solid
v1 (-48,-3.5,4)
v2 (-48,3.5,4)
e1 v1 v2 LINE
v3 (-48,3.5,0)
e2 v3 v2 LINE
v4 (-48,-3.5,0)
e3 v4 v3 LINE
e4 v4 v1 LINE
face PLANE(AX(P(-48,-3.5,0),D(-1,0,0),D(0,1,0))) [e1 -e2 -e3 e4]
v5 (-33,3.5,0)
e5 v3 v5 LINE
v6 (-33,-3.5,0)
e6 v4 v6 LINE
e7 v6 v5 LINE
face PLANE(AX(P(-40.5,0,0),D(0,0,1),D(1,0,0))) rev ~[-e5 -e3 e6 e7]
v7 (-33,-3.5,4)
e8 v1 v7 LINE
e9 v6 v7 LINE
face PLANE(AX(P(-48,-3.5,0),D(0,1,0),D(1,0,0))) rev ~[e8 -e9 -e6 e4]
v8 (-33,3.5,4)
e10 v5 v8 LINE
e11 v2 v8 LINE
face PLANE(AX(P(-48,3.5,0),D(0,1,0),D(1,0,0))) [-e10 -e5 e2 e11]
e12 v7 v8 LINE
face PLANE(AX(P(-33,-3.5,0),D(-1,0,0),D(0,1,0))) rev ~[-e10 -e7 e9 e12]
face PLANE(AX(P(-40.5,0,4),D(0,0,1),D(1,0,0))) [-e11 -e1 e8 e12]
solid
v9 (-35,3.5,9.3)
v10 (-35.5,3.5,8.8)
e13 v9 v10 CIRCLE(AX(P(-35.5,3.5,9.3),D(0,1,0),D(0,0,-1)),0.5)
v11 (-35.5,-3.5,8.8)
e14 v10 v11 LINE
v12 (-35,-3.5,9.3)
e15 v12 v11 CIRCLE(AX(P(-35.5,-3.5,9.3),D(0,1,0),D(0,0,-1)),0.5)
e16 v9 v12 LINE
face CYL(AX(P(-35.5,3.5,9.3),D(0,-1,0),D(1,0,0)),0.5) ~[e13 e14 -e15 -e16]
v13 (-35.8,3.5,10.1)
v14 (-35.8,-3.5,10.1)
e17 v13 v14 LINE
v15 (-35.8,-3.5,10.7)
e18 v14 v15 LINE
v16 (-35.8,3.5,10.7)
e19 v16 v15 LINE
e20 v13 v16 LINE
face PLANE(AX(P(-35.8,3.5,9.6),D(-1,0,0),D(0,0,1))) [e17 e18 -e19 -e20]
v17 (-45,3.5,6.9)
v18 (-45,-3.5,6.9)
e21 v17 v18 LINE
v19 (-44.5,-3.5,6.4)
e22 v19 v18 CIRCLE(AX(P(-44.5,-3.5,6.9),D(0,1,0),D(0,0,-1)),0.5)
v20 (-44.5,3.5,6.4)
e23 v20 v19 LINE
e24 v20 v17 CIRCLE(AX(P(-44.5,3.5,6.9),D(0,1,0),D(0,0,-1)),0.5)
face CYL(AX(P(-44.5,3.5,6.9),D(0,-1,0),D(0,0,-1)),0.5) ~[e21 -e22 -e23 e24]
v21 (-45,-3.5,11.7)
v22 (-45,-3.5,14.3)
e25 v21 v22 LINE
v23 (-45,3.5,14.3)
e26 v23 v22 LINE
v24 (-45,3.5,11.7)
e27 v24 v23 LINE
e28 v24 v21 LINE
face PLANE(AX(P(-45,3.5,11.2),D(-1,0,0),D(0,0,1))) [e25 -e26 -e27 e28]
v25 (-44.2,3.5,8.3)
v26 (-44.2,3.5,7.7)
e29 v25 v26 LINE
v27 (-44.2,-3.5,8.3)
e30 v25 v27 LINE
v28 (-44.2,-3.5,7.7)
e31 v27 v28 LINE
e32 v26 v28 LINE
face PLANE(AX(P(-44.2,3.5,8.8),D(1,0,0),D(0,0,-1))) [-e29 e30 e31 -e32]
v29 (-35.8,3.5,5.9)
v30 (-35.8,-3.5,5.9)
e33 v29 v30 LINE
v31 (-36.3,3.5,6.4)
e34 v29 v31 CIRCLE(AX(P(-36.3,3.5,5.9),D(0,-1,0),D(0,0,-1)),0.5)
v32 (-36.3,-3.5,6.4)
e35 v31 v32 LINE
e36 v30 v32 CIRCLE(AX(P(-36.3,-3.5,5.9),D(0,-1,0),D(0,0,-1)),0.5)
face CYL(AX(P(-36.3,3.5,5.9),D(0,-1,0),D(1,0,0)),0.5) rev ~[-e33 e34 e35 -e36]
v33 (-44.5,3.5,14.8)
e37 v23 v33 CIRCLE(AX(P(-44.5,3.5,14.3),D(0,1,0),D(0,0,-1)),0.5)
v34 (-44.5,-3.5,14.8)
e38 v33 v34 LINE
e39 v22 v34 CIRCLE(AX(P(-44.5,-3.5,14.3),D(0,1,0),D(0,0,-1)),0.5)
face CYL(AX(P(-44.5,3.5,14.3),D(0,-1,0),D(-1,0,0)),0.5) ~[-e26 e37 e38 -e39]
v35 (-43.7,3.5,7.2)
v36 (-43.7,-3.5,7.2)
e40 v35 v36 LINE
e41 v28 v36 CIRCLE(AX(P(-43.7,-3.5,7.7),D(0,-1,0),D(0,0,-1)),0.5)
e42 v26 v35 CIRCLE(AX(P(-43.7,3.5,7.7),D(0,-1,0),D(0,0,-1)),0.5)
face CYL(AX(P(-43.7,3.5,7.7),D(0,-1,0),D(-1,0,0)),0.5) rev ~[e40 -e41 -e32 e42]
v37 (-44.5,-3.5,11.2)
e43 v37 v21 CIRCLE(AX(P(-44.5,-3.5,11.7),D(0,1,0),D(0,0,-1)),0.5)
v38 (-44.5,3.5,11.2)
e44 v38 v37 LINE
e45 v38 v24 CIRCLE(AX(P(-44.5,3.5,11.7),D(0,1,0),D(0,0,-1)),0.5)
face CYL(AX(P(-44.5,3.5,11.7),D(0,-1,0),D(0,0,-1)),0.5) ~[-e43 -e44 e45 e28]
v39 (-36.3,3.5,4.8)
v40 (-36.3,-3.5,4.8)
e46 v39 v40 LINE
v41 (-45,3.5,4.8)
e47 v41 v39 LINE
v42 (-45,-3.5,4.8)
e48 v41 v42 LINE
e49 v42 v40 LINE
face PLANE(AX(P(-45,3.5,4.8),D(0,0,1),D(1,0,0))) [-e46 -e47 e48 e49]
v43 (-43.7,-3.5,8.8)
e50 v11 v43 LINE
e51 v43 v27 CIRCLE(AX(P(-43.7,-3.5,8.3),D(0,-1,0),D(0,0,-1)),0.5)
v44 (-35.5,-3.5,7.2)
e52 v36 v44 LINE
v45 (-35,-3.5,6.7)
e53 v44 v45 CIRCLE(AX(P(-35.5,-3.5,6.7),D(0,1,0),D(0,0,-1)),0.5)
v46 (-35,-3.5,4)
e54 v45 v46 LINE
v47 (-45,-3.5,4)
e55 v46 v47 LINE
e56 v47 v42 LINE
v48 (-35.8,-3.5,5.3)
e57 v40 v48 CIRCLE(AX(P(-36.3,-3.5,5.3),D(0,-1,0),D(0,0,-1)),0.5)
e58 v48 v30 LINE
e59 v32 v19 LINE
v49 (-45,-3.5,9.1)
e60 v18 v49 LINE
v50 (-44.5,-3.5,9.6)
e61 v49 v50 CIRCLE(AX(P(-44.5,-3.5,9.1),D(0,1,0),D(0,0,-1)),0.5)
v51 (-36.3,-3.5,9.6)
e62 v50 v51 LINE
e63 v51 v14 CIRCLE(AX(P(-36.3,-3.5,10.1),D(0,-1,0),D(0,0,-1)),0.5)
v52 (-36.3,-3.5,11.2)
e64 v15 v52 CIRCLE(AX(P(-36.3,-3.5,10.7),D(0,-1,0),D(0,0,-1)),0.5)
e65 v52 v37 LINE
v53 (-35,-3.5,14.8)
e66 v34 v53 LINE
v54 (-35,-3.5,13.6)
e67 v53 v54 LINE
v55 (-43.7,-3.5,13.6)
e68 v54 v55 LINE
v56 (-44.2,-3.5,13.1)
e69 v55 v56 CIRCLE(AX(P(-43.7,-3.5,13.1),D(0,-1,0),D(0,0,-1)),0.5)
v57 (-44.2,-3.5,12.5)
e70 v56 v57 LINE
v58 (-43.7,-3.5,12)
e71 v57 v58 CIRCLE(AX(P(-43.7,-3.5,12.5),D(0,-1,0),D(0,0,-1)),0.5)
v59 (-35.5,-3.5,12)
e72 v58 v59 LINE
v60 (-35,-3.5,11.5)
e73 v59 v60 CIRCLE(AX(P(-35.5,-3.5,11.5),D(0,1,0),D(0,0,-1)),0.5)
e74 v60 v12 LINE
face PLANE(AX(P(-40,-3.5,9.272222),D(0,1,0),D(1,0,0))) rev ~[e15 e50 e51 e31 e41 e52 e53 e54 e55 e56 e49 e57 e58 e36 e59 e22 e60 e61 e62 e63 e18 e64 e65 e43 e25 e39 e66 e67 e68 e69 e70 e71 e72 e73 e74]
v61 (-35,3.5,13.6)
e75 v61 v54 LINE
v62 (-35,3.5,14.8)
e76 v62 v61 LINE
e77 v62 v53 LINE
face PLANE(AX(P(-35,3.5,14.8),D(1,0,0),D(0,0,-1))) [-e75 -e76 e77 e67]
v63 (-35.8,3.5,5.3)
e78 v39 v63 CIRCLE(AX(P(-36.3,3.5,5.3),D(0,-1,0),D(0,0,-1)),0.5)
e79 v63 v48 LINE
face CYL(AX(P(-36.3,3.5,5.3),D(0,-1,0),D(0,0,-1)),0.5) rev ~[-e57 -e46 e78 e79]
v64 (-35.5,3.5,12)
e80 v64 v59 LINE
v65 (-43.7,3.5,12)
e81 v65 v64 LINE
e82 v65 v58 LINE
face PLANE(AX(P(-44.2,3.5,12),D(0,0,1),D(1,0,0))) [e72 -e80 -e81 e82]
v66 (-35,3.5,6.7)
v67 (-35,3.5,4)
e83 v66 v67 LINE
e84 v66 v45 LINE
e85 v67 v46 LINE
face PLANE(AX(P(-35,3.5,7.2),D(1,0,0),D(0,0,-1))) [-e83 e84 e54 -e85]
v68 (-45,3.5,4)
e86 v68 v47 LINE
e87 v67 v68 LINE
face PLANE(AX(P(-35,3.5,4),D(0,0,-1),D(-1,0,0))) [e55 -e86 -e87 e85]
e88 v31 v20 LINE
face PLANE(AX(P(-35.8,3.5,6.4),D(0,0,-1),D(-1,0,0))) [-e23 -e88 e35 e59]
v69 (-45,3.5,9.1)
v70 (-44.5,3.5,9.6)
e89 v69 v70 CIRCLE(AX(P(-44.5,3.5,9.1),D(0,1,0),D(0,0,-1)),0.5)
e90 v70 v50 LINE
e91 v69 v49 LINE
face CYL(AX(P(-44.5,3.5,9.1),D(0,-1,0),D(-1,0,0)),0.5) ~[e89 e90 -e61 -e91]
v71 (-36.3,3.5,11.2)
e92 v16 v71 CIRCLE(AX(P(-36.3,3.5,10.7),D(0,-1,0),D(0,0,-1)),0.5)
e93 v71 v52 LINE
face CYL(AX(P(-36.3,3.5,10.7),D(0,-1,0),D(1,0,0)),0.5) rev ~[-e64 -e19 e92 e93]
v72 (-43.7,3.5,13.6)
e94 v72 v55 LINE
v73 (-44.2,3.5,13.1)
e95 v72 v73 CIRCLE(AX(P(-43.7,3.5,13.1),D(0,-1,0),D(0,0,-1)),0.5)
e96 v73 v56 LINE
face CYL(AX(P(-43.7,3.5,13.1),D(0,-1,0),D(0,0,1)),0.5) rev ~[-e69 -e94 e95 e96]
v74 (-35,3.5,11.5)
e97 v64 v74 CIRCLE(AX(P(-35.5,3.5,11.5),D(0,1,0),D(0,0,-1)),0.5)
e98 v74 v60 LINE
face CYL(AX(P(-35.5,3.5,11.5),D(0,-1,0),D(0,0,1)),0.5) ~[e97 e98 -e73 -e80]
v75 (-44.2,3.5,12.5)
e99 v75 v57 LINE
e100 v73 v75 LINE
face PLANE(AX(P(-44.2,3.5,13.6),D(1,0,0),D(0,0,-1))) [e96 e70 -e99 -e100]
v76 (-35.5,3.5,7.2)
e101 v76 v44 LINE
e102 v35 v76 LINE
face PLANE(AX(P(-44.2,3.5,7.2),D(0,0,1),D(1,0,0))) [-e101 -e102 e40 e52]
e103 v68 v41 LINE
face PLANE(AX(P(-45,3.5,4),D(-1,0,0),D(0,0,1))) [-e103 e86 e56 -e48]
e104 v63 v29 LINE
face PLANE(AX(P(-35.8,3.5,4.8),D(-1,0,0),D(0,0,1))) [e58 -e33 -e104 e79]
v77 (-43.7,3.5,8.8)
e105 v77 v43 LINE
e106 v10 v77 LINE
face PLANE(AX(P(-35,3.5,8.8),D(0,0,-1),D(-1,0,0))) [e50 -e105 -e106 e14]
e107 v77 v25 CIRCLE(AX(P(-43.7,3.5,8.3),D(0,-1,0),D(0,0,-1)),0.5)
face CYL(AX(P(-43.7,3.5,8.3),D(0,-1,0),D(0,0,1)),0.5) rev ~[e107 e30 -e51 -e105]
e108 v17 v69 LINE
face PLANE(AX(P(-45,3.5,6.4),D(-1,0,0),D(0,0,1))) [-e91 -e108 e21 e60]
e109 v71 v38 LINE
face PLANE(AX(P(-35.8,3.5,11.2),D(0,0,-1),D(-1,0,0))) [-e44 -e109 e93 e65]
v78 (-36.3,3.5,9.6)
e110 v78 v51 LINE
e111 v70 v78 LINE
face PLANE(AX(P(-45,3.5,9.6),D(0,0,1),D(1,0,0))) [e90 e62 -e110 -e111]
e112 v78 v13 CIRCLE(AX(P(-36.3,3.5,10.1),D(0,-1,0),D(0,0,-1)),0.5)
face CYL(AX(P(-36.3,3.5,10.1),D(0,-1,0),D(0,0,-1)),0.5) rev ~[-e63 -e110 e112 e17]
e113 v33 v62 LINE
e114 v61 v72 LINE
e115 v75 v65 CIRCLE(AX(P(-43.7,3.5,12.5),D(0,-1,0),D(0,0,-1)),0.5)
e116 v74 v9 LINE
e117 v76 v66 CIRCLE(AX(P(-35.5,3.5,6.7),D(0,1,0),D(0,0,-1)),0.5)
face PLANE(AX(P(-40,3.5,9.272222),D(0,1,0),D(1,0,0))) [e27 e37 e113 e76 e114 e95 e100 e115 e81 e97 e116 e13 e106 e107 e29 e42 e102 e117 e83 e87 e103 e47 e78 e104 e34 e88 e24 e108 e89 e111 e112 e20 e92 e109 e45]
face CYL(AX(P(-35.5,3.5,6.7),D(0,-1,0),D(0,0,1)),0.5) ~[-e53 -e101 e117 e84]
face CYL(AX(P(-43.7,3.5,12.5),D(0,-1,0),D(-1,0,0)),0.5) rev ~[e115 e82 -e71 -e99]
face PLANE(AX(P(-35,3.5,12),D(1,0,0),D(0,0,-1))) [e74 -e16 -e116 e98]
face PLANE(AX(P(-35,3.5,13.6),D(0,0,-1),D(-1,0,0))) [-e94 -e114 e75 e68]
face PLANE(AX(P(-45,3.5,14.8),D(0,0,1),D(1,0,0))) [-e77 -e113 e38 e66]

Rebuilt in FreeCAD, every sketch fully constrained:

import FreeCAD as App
import Part
import Sketcher


def edges_at(feature, points):
    """Names of the edges that pass closest to the given points."""
    edges = feature.Shape.Edges
    near = lambda p: min(range(len(edges)), key=lambda i: edges[i].distToShape(Part.Vertex(*p))[0])
    return sorted({f"Edge{near(p) + 1}" for p in points})


def add_polygon(sketch, points):
    """Adds a closed chain of lines whose ends are joined by coincident constraints."""
    first, n = sketch.GeometryCount, len(points)
    for a, b in zip(points, points[1:] + points[:1]):
        sketch.addGeometry(Part.LineSegment(App.Vector(*a, 0), App.Vector(*b, 0)), False)
    for i in range(n):
        sketch.addConstraint(Sketcher.Constraint("Coincident", first + i, 2, first + (i + 1) % n, 1))

doc = App.newDocument("Part")
body = doc.addObject("PartDesign::Body", "Body")

# Sketch on XY plane
sketch1 = doc.addObject("Sketcher::SketchObject", "Sketch")
body.addObject(sketch1)
sketch1.AttachmentSupport = (doc.XY_Plane, [""])
sketch1.MapMode = "FlatFace"
add_polygon(sketch1, [(-48, 4), (-48, -4), (-33, -4), (-33, 4)])  # lines 0-3
sketch1.addConstraint(Sketcher.Constraint("Vertical", 0))
sketch1.addConstraint(Sketcher.Constraint("Horizontal", 1))
sketch1.addConstraint(Sketcher.Constraint("Vertical", 2))
sketch1.addConstraint(Sketcher.Constraint("Horizontal", 3))
sketch1.addConstraint(Sketcher.Constraint("DistanceX", 1, 1, 1, 2, 15.0))
sketch1.addConstraint(Sketcher.Constraint("DistanceY", 0, 2, 0, 1, 7.0))
sketch1.addConstraint(Sketcher.Constraint("DistanceX", 0, 2, -1, 1, 48.0))
sketch1.addConstraint(Sketcher.Constraint("DistanceY", 0, 2, -1, 1, 3.5))
pad1 = doc.addObject("PartDesign::Pad", "Pad")
body.addObject(pad1)
pad1.Profile = sketch1
pad1.Length = 4
body2 = doc.addObject("PartDesign::Body", "Body001")

# Sketch on XZ plane
sketch2 = doc.addObject("Sketcher::SketchObject", "Sketch001")
body2.addObject(sketch2)
sketch2.AttachmentSupport = (doc.getObject("XZ_Plane001"), [""])
sketch2.MapMode = "FlatFace"
sketch2.AttachmentOffset = App.Placement(App.Vector(0, 0, -3.5), App.Rotation())
add_polygon(sketch2, [(-35, 4), (-45, 4), (-45, 4.8), (-35.8, 4.8), (-35.8, 6.4), (-45, 6.4), (-45, 9.6), (-35.8, 9.6), (-35.8, 11.2), (-45, 11.2), (-45, 14.8), (-35, 14.8), (-35, 13.6), (-44.2, 13.6), (-44.2, 12), (-35, 12), (-35, 8.8), (-44.2, 8.8), (-44.2, 7.2), (-35, 7.2)])  # lines 0-19
sketch2.addConstraint(Sketcher.Constraint("Horizontal", 0))
sketch2.addConstraint(Sketcher.Constraint("Vertical", 1))
sketch2.addConstraint(Sketcher.Constraint("Horizontal", 2))
sketch2.addConstraint(Sketcher.Constraint("Vertical", 3))
sketch2.addConstraint(Sketcher.Constraint("Horizontal", 4))
sketch2.addConstraint(Sketcher.Constraint("Vertical", 5))
sketch2.addConstraint(Sketcher.Constraint("Horizontal", 6))
sketch2.addConstraint(Sketcher.Constraint("Vertical", 7))
sketch2.addConstraint(Sketcher.Constraint("Horizontal", 8))
sketch2.addConstraint(Sketcher.Constraint("Vertical", 9))
sketch2.addConstraint(Sketcher.Constraint("Horizontal", 10))
sketch2.addConstraint(Sketcher.Constraint("Vertical", 11))
sketch2.addConstraint(Sketcher.Constraint("Horizontal", 12))
sketch2.addConstraint(Sketcher.Constraint("Vertical", 13))
sketch2.addConstraint(Sketcher.Constraint("Horizontal", 14))
sketch2.addConstraint(Sketcher.Constraint("Vertical", 15))
sketch2.addConstraint(Sketcher.Constraint("Horizontal", 16))
sketch2.addConstraint(Sketcher.Constraint("Vertical", 17))
sketch2.addConstraint(Sketcher.Constraint("Horizontal", 18))
sketch2.addConstraint(Sketcher.Constraint("Vertical", 19))
sketch2.addConstraint(Sketcher.Constraint("Vertical", 1, 2, 4, 2))
sketch2.addConstraint(Sketcher.Constraint("Vertical", 3, 2, 6, 2))
sketch2.addConstraint(Sketcher.Constraint("Vertical", 5, 2, 8, 2))
sketch2.addConstraint(Sketcher.Constraint("Vertical", 11, 2, 14, 2))
sketch2.addConstraint(Sketcher.Constraint("Vertical", 13, 2, 16, 2))
sketch2.addConstraint(Sketcher.Constraint("Vertical", 15, 2, 18, 2))
sketch2.addConstraint(Sketcher.Constraint("Equal", 8, 12))
sketch2.addConstraint(Sketcher.Constraint("Equal", 3, 7))
sketch2.addConstraint(Sketcher.Constraint("Equal", 7, 13))
sketch2.addConstraint(Sketcher.Constraint("Equal", 5, 15))
sketch2.addConstraint(Sketcher.Constraint("Equal", 13, 17))
sketch2.addConstraint(Sketcher.Constraint("Equal", 15, 19))
sketch2.addConstraint(Sketcher.Constraint("DistanceX", 0, 2, 0, 1, 10.0))
sketch2.addConstraint(Sketcher.Constraint("DistanceX", 2, 1, 2, 2, 9.2))
sketch2.addConstraint(Sketcher.Constraint("DistanceY", 1, 1, 1, 2, 0.8))
sketch2.addConstraint(Sketcher.Constraint("DistanceY", 3, 1, 3, 2, 1.6))
sketch2.addConstraint(Sketcher.Constraint("DistanceY", 5, 1, 5, 2, 3.2))
sketch2.addConstraint(Sketcher.Constraint("DistanceY", 9, 1, 9, 2, 3.6))
sketch2.addConstraint(Sketcher.Constraint("DistanceX", 0, 2, -1, 1, 45.0))
sketch2.addConstraint(Sketcher.Constraint("DistanceY", -1, 1, 0, 2, 4.0))
pad2 = doc.addObject("PartDesign::Pad", "Pad001")
body2.addObject(pad2)
pad2.Profile = sketch2
pad2.Length = 7
doc.recompute()

fillet = doc.addObject("PartDesign::Fillet", "Fillet")
body2.addObject(fillet)
fillet.Base = (pad2, edges_at(pad2, [
    (-35, 0, 7.2),
    (-44.2, 0, 7.2),
    (-44.2, 0, 8.8),
    (-35, 0, 8.8),
    (-35, 0, 12),
    (-44.2, 0, 12),
    (-44.2, 0, 13.6),
    (-45, 0, 14.8),
    (-45, 0, 11.2),
    (-35.8, 0, 11.2),
    (-35.8, 0, 9.6),
    (-45, 0, 9.6),
    (-45, 0, 6.4),
    (-35.8, 0, 6.4),
    (-35.8, 0, 4.8),
]))
fillet.Radius = 0.5

doc.recompute()
